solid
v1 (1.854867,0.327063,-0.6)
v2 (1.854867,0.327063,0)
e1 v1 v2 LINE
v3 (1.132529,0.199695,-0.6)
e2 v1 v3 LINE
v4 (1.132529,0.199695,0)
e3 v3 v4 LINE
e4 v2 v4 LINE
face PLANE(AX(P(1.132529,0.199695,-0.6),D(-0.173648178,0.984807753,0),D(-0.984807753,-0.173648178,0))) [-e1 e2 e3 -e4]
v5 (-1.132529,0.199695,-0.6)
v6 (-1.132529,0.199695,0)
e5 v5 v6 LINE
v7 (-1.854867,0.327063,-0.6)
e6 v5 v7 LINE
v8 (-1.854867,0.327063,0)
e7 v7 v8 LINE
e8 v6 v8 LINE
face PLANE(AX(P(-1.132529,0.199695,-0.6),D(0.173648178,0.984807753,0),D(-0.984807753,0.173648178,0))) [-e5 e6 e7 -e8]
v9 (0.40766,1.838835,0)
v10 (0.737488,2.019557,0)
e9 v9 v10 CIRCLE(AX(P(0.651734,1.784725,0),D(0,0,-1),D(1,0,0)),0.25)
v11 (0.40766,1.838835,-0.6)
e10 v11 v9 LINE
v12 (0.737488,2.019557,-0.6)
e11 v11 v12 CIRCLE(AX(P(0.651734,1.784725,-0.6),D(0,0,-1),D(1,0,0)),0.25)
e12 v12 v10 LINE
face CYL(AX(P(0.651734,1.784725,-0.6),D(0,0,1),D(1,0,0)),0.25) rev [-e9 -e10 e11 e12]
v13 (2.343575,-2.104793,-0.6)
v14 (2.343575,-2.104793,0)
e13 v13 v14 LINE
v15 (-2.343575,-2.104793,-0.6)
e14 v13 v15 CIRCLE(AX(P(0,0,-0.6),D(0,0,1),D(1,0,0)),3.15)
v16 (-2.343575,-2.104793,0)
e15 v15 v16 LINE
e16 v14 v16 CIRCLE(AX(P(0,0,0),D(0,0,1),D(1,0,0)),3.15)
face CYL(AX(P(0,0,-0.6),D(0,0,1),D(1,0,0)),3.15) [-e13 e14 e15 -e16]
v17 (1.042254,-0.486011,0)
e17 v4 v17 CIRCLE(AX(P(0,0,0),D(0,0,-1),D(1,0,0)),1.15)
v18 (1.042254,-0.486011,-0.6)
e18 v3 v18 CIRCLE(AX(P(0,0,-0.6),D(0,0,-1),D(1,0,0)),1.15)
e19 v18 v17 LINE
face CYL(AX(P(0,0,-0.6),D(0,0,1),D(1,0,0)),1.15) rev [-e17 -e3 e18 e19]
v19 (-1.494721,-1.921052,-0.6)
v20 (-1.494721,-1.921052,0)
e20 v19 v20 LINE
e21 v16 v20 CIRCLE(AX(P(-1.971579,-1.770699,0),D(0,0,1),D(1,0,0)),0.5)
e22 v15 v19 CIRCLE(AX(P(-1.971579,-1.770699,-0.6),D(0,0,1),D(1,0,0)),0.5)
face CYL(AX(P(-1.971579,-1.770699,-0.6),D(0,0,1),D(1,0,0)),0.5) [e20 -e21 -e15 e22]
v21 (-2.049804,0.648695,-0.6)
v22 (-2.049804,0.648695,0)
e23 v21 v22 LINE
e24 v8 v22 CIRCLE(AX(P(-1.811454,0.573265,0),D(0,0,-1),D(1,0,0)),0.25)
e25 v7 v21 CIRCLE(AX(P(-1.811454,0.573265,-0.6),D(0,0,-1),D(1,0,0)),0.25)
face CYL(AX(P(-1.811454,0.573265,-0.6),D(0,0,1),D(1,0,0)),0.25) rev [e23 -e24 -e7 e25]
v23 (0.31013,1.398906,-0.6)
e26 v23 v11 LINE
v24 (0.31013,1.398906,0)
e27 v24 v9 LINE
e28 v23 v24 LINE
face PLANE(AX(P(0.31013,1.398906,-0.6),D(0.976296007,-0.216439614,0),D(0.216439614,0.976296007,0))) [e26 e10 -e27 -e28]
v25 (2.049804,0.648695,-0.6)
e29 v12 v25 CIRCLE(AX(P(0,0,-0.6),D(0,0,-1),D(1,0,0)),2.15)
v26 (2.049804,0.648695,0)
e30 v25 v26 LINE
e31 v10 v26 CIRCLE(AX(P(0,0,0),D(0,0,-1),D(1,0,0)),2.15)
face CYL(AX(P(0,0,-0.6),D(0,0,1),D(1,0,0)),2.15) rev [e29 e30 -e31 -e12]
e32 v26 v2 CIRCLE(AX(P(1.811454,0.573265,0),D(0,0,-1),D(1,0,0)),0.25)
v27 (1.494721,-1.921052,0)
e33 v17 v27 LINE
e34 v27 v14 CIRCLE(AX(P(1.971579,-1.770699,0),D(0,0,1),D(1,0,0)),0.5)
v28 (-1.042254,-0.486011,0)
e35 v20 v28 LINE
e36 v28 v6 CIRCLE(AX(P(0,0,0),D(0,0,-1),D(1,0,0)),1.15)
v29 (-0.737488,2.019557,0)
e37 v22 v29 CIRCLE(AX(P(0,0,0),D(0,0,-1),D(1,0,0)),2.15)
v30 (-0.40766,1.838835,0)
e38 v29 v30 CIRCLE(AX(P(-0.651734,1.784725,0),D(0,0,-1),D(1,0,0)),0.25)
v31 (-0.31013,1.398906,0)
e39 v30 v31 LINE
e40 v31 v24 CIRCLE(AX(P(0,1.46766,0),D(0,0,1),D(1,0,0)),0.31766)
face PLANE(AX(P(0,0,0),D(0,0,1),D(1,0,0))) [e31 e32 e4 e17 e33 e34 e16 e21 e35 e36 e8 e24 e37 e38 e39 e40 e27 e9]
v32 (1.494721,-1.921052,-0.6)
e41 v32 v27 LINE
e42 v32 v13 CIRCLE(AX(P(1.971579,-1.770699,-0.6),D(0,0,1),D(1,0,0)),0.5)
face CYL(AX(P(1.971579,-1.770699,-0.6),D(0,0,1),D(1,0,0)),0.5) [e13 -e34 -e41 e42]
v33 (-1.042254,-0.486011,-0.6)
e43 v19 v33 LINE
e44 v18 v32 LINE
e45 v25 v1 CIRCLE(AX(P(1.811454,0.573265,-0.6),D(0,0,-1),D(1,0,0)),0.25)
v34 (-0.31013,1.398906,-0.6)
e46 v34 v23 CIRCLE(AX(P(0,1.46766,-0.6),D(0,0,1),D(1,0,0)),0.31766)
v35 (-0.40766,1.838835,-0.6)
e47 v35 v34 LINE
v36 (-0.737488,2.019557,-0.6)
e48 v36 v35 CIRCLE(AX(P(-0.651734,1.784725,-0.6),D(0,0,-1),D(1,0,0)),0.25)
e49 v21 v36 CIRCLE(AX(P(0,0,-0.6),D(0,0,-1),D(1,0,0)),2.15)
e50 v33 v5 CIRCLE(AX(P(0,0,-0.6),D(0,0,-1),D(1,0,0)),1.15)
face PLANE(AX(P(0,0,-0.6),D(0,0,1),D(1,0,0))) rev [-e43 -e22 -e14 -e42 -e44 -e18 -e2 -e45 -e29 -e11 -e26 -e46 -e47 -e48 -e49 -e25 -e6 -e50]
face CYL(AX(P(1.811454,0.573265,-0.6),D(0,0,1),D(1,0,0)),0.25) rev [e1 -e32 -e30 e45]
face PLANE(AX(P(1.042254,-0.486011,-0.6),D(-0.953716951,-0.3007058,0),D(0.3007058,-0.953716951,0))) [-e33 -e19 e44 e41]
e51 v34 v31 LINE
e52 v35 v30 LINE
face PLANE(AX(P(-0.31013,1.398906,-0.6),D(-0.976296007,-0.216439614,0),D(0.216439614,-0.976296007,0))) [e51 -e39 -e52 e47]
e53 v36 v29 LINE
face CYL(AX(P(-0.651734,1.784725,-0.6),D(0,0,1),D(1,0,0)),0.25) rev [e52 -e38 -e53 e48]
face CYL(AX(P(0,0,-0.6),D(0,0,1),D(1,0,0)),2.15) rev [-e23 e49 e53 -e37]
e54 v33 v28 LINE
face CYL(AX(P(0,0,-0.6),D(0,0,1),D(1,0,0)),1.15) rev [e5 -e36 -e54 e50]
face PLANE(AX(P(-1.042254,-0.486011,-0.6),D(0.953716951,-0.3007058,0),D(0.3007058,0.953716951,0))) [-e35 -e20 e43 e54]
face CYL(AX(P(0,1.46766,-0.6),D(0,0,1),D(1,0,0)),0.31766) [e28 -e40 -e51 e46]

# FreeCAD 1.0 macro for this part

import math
import FreeCAD as App
import Part
import Sketcher
Q = App.Units.Quantity

doc = App.newDocument("Part")
params = doc.addObject("Spreadsheet::Sheet", "Params")
for row, (alias, value) in enumerate([
    ("sketch1_radius", "0.5 mm"),
    ("sketch1_radius2", "1.15 mm"),
    ("sketch1_radius3", "3.15 mm"),
    ("sketch1_radius4", "0.25 mm"),
    ("sketch1_radius5", "2.15 mm"),
    ("pad1_length", "0.6 mm"),
], start=1):
    params.set(f"A{row}", alias)
    params.set(f"B{row}", "=" + value)
    params.setAlias(f"B{row}", alias)

body = doc.addObject("PartDesign::Body", "Body")

# Sketch on XY plane
sketch1 = body.newObject("Sketcher::SketchObject", "Sketch")
sketch1.AttachmentSupport = (doc.getObject("XY_Plane"), [""])
sketch1.MapMode = "FlatFace"
sketch1.addGeometry(Part.LineSegment(App.Vector(1.854867, 0.327063, 0), App.Vector(1.132529, 0.199695, 0)), False)
sketch1.addGeometry(Part.ArcOfCircle(Part.Circle(App.Vector(0, 0, 0), App.Vector(0, 0, 1), 1.15), math.radians(-25), math.radians(10)), False)
sketch1.addGeometry(Part.LineSegment(App.Vector(1.042254, -0.486011, 0), App.Vector(1.494721, -1.921052, 0)), False)
sketch1.addGeometry(Part.ArcOfCircle(Part.Circle(App.Vector(1.971579, -1.770699, 0), App.Vector(0, 0, 1), 0.5), math.radians(-162.5), math.radians(-41.927396)), False)
sketch1.addGeometry(Part.ArcOfCircle(Part.Circle(App.Vector(0, 0, 0), App.Vector(0, 0, 1), 3.15), math.radians(-41.927396), math.radians(221.927396)), False)
sketch1.addGeometry(Part.ArcOfCircle(Part.Circle(App.Vector(-1.971579, -1.770699, 0), App.Vector(0, 0, 1), 0.5), math.radians(-138.072604), math.radians(-17.5)), False)
sketch1.addGeometry(Part.LineSegment(App.Vector(-1.494721, -1.921052, 0), App.Vector(-1.042254, -0.486011, 0)), False)
sketch1.addGeometry(Part.ArcOfCircle(Part.Circle(App.Vector(0, 0, 0), App.Vector(0, 0, 1), 1.15), math.radians(170), math.radians(205)), False)
sketch1.addGeometry(Part.LineSegment(App.Vector(-1.132529, 0.199695, 0), App.Vector(-1.854867, 0.327063, 0)), False)
sketch1.addGeometry(Part.ArcOfCircle(Part.Circle(App.Vector(-1.811454, 0.573265, 0), App.Vector(0, 0, 1), 0.25), math.radians(162.439157), math.radians(260)), False)
sketch1.addGeometry(Part.ArcOfCircle(Part.Circle(App.Vector(0, 0, 0), App.Vector(0, 0, 1), 2.15), math.radians(110.060843), math.radians(162.439157)), False)
sketch1.addGeometry(Part.ArcOfCircle(Part.Circle(App.Vector(-0.651734, 1.784725, 0), App.Vector(0, 0, 1), 0.25), math.radians(12.5), math.radians(110.060843)), False)
sketch1.addGeometry(Part.LineSegment(App.Vector(-0.40766, 1.838835, 0), App.Vector(-0.31013, 1.398906, 0)), False)
sketch1.addGeometry(Part.ArcOfCircle(Part.Circle(App.Vector(0, 1.46766, 0), App.Vector(0, 0, 1), 0.31766), math.radians(-167.5), math.radians(-12.5)), False)
sketch1.addGeometry(Part.LineSegment(App.Vector(0.31013, 1.398906, 0), App.Vector(0.40766, 1.838835, 0)), False)
sketch1.addGeometry(Part.ArcOfCircle(Part.Circle(App.Vector(0.651734, 1.784725, 0), App.Vector(0, 0, 1), 0.25), math.radians(69.939157), math.radians(167.5)), False)
sketch1.addGeometry(Part.ArcOfCircle(Part.Circle(App.Vector(0, 0, 0), App.Vector(0, 0, 1), 2.15), math.radians(17.560843), math.radians(69.939157)), False)
sketch1.addGeometry(Part.ArcOfCircle(Part.Circle(App.Vector(1.811454, 0.573265, 0), App.Vector(0, 0, 1), 0.25), math.radians(-80), math.radians(17.560843)), False)
sketch1.addConstraint(Sketcher.Constraint("Coincident", 0, 2, 1, 2))
sketch1.addConstraint(Sketcher.Constraint("Coincident", 1, 1, 2, 1))
sketch1.addConstraint(Sketcher.Constraint("Tangent", 2, 2, 3, 1))
sketch1.addConstraint(Sketcher.Constraint("Tangent", 3, 2, 4, 1))
sketch1.addConstraint(Sketcher.Constraint("Tangent", 4, 2, 5, 1))
sketch1.addConstraint(Sketcher.Constraint("Tangent", 5, 2, 6, 1))
sketch1.addConstraint(Sketcher.Constraint("Coincident", 6, 2, 7, 2))
sketch1.addConstraint(Sketcher.Constraint("Coincident", 7, 1, 8, 1))
sketch1.addConstraint(Sketcher.Constraint("Tangent", 8, 2, 9, 2))
sketch1.addConstraint(Sketcher.Constraint("Tangent", 9, 1, 10, 2))
sketch1.addConstraint(Sketcher.Constraint("Tangent", 10, 1, 11, 2))
sketch1.addConstraint(Sketcher.Constraint("Tangent", 11, 1, 12, 1))
sketch1.addConstraint(Sketcher.Constraint("Tangent", 12, 2, 13, 1))
sketch1.addConstraint(Sketcher.Constraint("Tangent", 13, 2, 14, 1))
sketch1.addConstraint(Sketcher.Constraint("Tangent", 14, 2, 15, 2))
sketch1.addConstraint(Sketcher.Constraint("Tangent", 15, 1, 16, 2))
sketch1.addConstraint(Sketcher.Constraint("Tangent", 16, 1, 17, 2))
sketch1.addConstraint(Sketcher.Constraint("Tangent", 17, 1, 0, 1))
sketch1.addConstraint(Sketcher.Constraint("Coincident", 1, 3, -1, 1))
sketch1.addConstraint(Sketcher.Constraint("Coincident", 4, 3, -1, 1))
sketch1.addConstraint(Sketcher.Constraint("Coincident", 7, 3, -1, 1))
sketch1.addConstraint(Sketcher.Constraint("Coincident", 10, 3, -1, 1))
sketch1.addConstraint(Sketcher.Constraint("Coincident", 16, 3, -1, 1))
sketch1.addConstraint(Sketcher.Constraint("Equal", 3, 5))
sketch1.addConstraint(Sketcher.Constraint("Equal", 1, 7))
sketch1.addConstraint(Sketcher.Constraint("Equal", 9, 11))
sketch1.addConstraint(Sketcher.Constraint("Equal", 11, 15))
sketch1.addConstraint(Sketcher.Constraint("Equal", 10, 16))
sketch1.addConstraint(Sketcher.Constraint("Equal", 15, 17))
sketch1.addConstraint(Sketcher.Constraint("Symmetric", 2, 2, 5, 2, -2))
sketch1.addConstraint(Sketcher.Constraint("Symmetric", 12, 2, 13, 2, -2))
sketch1.addConstraint(Sketcher.Constraint("Symmetric", 8, 2, 17, 1, -2))
sketch1.addConstraint(Sketcher.Constraint("Radius", 3, Q("0.5 mm")))
sketch1.addConstraint(Sketcher.Constraint("Angle", 0, Q("-170 deg")))
sketch1.addConstraint(Sketcher.Constraint("Radius", 1, Q("1.15 mm")))
sketch1.addConstraint(Sketcher.Constraint("Radius", 4, Q("3.15 mm")))
sketch1.addConstraint(Sketcher.Constraint("Radius", 9, Q("0.25 mm")))
sketch1.addConstraint(Sketcher.Constraint("Radius", 10, Q("2.15 mm")))
sketch1.addConstraint(Sketcher.Constraint("Angle", 2, Q("-72.5 deg")))
sketch1.addConstraint(Sketcher.Constraint("Angle", 12, Q("-77.5 deg")))
sketch1.addConstraint(Sketcher.Constraint("Radius", 13, Q("0.31766 mm")))
sketch1.addConstraint(Sketcher.Constraint("DistanceY", 7, 1, 9, 1, Q("0.448999 mm")))
sketch1.addConstraint(Sketcher.Constraint("DistanceY", 3, 3, -1, 1, Q("1.770699 mm")))
sketch1.addConstraint(Sketcher.Constraint("Distance", 12, Q("0.450611 mm")))
sketch1.setExpression("Constraints[32]", "Params.sketch1_radius")
sketch1.setExpression("Constraints[34]", "Params.sketch1_radius2")
sketch1.setExpression("Constraints[35]", "Params.sketch1_radius3")
sketch1.setExpression("Constraints[36]", "Params.sketch1_radius4")
sketch1.setExpression("Constraints[37]", "Params.sketch1_radius5")
pad1 = body.newObject("PartDesign::Pad", "Pad")
pad1.Profile = sketch1
pad1.setExpression("Length", "Params.pad1_length")
pad1.Reversed = True

doc.recompute()
